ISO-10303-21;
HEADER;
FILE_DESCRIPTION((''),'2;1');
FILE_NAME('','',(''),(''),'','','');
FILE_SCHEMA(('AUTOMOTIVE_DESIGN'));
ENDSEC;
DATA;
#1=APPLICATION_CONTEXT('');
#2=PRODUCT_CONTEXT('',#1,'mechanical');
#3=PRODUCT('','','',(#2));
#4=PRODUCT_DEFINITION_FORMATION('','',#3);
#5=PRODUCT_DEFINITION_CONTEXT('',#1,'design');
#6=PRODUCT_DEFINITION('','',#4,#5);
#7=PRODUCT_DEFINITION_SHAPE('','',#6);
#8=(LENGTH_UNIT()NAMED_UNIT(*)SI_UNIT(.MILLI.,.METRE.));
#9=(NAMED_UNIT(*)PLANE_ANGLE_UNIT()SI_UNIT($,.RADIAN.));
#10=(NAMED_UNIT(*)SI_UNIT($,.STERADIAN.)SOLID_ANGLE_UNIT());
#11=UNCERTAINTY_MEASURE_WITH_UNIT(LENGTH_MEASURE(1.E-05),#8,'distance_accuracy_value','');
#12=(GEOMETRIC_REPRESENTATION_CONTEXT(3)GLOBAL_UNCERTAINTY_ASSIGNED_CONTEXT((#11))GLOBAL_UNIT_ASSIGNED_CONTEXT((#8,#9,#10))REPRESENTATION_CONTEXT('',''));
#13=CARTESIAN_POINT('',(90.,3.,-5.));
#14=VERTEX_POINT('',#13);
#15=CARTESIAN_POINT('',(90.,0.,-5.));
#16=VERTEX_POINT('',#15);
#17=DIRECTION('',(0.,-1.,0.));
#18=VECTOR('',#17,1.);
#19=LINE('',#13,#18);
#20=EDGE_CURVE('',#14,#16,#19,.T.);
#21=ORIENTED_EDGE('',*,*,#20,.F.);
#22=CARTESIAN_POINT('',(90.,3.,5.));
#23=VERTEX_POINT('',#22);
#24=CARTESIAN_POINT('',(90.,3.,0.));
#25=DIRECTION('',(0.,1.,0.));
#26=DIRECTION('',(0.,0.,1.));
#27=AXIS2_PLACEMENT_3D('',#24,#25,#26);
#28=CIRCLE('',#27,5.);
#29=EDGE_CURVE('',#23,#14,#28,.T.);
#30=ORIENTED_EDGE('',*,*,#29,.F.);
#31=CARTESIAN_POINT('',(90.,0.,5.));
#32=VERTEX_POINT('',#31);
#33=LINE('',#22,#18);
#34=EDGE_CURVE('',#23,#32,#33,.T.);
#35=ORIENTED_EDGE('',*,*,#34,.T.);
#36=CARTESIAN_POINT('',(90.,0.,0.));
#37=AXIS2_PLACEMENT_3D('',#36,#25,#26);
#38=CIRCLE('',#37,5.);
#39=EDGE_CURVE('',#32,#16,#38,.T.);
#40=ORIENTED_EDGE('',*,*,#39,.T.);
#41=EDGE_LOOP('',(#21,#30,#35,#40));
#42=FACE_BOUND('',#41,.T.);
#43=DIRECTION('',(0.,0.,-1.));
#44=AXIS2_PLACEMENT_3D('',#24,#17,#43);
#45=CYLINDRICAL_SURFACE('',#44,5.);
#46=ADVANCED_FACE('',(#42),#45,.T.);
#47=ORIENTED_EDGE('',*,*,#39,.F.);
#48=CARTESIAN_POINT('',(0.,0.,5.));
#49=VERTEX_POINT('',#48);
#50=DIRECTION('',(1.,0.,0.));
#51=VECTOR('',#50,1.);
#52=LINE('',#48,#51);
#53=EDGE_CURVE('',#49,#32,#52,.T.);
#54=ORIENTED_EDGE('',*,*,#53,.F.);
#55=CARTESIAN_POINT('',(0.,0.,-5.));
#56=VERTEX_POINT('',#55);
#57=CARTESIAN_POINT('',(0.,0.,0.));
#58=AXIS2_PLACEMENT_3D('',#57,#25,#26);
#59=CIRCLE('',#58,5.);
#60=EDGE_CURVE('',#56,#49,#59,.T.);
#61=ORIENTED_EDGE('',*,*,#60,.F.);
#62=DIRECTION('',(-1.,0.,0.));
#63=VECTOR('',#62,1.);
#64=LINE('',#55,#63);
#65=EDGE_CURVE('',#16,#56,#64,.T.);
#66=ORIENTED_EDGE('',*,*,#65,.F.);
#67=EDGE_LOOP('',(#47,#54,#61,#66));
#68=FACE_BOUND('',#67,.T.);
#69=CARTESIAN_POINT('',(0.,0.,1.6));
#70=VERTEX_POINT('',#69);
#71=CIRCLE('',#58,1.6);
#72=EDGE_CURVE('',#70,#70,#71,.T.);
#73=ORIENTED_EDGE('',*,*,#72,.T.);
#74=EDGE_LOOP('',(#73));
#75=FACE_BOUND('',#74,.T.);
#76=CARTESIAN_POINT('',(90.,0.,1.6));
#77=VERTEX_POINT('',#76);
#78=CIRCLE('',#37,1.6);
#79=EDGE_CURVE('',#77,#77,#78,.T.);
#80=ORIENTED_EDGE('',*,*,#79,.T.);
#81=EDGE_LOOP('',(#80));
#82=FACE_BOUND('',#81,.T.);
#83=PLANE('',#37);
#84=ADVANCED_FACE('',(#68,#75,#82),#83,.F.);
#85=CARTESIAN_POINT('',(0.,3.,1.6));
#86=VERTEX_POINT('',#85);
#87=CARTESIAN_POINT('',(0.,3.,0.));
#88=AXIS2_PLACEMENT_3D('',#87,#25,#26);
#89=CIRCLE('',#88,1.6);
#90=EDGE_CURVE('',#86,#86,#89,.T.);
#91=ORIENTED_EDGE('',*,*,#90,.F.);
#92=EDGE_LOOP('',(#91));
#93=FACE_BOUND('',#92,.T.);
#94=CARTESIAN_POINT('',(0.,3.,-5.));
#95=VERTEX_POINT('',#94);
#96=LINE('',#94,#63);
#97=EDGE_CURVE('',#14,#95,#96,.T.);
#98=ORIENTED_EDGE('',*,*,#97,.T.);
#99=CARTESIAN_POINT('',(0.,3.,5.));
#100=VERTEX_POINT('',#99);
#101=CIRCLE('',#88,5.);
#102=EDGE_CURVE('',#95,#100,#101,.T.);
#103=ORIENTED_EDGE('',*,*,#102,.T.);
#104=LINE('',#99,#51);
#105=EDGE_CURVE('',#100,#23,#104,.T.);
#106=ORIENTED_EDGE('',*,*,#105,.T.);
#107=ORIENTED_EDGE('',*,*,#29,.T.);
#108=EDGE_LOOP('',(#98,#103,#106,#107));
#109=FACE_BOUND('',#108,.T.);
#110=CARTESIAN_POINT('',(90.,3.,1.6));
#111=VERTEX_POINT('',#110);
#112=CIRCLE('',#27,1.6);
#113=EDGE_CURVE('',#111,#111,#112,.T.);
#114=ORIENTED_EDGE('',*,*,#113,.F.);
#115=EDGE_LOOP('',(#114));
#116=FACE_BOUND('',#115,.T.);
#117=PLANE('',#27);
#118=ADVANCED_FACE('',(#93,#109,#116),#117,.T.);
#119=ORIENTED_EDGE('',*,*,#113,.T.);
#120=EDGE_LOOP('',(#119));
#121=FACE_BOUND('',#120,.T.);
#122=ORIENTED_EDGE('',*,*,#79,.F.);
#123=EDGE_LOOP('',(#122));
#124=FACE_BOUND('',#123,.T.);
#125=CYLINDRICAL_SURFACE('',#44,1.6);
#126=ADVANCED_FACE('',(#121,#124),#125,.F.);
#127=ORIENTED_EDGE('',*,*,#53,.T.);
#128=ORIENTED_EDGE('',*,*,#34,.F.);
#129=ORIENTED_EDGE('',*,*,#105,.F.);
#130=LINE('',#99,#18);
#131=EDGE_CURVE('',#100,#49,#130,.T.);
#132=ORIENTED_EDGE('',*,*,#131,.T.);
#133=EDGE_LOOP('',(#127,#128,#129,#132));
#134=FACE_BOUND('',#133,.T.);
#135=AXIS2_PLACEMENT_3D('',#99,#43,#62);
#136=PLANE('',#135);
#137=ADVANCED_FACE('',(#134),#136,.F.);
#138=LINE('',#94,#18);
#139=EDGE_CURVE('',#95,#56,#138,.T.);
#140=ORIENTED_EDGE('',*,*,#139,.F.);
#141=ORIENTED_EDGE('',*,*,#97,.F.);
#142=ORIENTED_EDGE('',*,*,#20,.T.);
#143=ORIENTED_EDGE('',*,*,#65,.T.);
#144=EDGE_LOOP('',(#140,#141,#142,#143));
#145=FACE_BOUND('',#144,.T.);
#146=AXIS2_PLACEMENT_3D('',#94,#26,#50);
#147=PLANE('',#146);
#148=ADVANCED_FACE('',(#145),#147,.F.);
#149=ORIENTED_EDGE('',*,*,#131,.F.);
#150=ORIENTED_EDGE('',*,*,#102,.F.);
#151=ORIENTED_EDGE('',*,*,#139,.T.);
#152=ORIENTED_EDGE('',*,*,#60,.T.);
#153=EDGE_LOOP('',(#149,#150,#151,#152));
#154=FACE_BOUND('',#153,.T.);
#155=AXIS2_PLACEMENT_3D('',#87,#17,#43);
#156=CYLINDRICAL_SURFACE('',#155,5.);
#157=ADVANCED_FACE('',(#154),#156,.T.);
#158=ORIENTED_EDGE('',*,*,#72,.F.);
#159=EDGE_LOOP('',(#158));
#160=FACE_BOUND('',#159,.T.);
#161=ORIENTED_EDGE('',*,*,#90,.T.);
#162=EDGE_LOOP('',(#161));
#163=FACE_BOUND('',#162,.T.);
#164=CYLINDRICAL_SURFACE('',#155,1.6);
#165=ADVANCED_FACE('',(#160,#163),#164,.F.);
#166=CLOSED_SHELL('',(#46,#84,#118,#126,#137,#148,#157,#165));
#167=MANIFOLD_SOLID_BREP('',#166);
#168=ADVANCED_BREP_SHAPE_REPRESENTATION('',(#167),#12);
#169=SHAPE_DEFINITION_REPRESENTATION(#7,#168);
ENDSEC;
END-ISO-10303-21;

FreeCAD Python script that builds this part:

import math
import FreeCAD as App
import Part
import Sketcher

doc = App.newDocument("Part")
body = doc.addObject("PartDesign::Body", "Body")

sketch1 = body.newObject("Sketcher::SketchObject", "Sketch")
sketch1.AttachmentSupport = (doc.getObject("XZ_Plane"), [""])
sketch1.MapMode = "FlatFace"
sketch1.addGeometry(Part.LineSegment(App.Vector(0, 5, 0), App.Vector(90, 5, 0)), False)
sketch1.addGeometry(Part.ArcOfCircle(Part.Circle(App.Vector(90, 0, 0), App.Vector(0, 0, 1), 5), math.radians(-90), math.radians(90)), False)
sketch1.addGeometry(Part.LineSegment(App.Vector(90, -5, 0), App.Vector(0, -5, 0)), False)
sketch1.addGeometry(Part.ArcOfCircle(Part.Circle(App.Vector(0, 0, 0), App.Vector(0, 0, 1), 5), math.radians(90), math.radians(270)), False)
sketch1.addGeometry(Part.Circle(App.Vector(0, 0, 0), App.Vector(0, 0, 1), 1.6), False)
sketch1.addGeometry(Part.Circle(App.Vector(90, 0, 0), App.Vector(0, 0, 1), 1.6), False)
sketch1.addConstraint(Sketcher.Constraint("Tangent", 0, 2, 1, 2))
sketch1.addConstraint(Sketcher.Constraint("Tangent", 1, 1, 2, 1))
sketch1.addConstraint(Sketcher.Constraint("Tangent", 2, 2, 3, 2))
sketch1.addConstraint(Sketcher.Constraint("Tangent", 3, 1, 0, 1))
sketch1.addConstraint(Sketcher.Constraint("Horizontal", 0))
sketch1.addConstraint(Sketcher.Constraint("Horizontal", 2))
sketch1.addConstraint(Sketcher.Constraint("Coincident", 3, 3, -1, 1))
sketch1.addConstraint(Sketcher.Constraint("Coincident", 4, 3, -1, 1))
sketch1.addConstraint(Sketcher.Constraint("Coincident", 5, 3, 1, 3))
sketch1.addConstraint(Sketcher.Constraint("Equal", 4, 5))
sketch1.addConstraint(Sketcher.Constraint("Radius", 1, 5.0))
sketch1.addConstraint(Sketcher.Constraint("Diameter", 4, 3.2))
sketch1.addConstraint(Sketcher.Constraint("DistanceX", 0, 1, 0, 2, 90.0))
pad1 = body.newObject("PartDesign::Pad", "Pad")
pad1.Profile = sketch1
pad1.Length = 3
pad1.Reversed = True

doc.recompute()
